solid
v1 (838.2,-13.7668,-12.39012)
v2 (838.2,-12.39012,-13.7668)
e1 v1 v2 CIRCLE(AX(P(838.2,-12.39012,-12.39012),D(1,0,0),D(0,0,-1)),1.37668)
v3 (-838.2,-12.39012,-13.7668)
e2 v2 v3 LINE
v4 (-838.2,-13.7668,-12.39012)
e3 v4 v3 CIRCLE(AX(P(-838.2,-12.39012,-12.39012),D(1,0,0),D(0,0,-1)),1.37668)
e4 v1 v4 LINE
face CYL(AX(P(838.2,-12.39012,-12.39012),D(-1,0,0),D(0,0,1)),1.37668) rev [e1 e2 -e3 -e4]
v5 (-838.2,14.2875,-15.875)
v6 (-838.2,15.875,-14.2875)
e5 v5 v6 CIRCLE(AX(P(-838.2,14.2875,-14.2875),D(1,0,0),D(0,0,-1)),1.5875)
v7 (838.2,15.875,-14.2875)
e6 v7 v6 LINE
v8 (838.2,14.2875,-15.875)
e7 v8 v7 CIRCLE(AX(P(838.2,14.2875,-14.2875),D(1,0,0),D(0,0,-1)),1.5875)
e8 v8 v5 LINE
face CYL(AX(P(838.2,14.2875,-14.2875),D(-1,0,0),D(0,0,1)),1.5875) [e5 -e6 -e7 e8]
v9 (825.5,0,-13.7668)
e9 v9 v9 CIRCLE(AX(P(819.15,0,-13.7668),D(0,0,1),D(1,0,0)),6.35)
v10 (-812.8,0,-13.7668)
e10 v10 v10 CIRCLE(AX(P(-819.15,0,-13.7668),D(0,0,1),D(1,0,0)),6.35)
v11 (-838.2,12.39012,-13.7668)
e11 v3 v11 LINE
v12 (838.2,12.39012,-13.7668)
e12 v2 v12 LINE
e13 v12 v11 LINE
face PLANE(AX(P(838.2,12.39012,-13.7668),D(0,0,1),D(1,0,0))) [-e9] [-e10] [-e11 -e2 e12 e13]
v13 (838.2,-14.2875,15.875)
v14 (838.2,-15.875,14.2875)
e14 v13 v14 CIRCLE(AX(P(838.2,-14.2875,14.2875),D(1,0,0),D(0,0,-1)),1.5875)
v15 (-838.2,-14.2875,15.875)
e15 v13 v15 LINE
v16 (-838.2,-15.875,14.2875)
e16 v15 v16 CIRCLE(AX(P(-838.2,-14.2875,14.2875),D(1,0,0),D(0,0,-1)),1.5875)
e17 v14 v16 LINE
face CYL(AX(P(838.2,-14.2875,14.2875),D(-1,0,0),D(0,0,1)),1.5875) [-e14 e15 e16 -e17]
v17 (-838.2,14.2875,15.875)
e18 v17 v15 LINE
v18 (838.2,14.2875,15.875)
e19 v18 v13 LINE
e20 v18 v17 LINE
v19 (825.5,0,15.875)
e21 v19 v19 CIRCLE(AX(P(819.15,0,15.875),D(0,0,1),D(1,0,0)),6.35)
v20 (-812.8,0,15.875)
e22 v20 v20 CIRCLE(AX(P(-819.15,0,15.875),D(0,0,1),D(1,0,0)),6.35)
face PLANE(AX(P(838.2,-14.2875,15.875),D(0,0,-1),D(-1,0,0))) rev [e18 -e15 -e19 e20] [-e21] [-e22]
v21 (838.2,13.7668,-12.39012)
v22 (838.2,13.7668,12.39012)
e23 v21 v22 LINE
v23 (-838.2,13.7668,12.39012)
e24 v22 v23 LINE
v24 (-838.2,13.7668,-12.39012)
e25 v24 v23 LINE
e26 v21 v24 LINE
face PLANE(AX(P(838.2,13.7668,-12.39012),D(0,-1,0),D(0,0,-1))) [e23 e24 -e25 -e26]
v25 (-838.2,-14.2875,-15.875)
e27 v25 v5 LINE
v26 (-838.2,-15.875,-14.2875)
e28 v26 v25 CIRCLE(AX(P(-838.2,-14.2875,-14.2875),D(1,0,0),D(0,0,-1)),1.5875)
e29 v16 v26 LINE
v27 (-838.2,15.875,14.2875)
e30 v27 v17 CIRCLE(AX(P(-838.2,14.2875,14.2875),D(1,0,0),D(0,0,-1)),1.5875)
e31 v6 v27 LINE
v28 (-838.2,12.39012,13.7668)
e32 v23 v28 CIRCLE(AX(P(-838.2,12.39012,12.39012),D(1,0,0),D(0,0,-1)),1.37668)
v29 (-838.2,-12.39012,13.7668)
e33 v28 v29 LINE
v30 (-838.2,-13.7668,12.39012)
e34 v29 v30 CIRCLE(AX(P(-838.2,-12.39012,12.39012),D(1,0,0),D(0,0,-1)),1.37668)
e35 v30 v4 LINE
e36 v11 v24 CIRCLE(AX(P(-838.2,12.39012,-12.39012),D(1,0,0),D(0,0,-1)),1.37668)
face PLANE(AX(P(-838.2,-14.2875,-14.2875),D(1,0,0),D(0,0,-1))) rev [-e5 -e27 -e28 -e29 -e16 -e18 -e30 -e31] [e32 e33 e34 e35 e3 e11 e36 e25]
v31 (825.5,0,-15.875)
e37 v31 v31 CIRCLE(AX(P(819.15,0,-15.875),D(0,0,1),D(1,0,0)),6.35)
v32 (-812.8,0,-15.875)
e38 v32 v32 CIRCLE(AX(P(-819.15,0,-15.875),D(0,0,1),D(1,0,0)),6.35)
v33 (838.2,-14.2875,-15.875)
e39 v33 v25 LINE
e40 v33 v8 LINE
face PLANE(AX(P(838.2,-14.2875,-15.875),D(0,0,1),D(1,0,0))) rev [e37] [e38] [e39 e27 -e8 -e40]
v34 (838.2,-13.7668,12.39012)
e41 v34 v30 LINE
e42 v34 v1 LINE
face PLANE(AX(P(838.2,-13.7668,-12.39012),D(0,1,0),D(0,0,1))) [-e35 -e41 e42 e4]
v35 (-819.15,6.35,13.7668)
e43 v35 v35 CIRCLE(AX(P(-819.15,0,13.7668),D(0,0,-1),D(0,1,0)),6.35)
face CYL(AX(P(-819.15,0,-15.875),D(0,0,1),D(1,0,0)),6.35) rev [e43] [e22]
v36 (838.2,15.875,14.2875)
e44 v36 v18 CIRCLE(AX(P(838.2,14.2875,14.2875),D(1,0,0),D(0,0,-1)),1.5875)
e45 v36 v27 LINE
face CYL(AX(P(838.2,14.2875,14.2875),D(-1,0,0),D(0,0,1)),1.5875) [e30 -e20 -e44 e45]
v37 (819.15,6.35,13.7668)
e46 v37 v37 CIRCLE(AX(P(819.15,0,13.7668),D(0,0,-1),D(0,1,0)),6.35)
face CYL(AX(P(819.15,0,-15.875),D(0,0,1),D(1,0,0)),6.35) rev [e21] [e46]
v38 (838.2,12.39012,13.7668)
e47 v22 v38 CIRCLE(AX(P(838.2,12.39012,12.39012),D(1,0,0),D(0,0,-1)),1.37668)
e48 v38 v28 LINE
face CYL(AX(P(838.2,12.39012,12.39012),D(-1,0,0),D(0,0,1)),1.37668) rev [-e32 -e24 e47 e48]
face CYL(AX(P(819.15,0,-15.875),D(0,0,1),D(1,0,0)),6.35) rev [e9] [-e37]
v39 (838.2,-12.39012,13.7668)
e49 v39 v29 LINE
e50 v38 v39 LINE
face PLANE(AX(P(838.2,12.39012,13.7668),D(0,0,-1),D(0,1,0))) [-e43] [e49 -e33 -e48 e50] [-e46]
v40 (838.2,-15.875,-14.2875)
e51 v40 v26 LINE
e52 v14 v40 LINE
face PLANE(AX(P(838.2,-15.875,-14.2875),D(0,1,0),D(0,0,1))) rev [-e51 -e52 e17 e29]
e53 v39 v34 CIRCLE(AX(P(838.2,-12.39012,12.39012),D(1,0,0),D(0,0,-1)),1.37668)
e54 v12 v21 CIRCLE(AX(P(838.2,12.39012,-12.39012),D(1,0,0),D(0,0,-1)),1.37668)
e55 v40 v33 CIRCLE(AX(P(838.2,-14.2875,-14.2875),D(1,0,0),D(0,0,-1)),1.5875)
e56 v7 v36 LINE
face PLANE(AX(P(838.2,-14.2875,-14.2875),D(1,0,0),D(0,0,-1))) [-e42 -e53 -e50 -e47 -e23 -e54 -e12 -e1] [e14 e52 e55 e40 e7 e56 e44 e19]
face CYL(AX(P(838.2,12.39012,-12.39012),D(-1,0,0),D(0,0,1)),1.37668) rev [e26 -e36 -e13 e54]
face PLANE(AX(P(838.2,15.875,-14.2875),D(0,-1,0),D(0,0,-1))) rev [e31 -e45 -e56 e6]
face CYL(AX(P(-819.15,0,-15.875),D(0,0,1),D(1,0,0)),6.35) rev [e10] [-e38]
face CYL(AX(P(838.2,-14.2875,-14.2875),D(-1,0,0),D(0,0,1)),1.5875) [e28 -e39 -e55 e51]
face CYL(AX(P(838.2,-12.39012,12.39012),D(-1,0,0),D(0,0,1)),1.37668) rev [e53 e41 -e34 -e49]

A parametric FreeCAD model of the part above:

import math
import FreeCAD as App
import Part
import Sketcher

V = App.Vector
Q = App.Units.Quantity

doc = App.newDocument("Part")
body = doc.addObject("PartDesign::Body", "Body")

# Sketch on YZ plane
sketch1 = body.newObject("Sketcher::SketchObject", "Sketch")
sketch1.AttachmentSupport = (doc.getObject("YZ_Plane"), [""])
sketch1.MapMode = "FlatFace"
sketch1.addGeometry(Part.LineSegment(V(-14.2875, -15.875, 0), V(14.2875, -15.875, 0)), False)
sketch1.addGeometry(Part.ArcOfCircle(Part.Circle(V(14.2875, -14.2875, 0), V(0, 0, 1), 1.5875), math.radians(-90), math.radians(0)), False)
sketch1.addGeometry(Part.LineSegment(V(15.875, -14.2875, 0), V(15.875, 14.2875, 0)), False)
sketch1.addGeometry(Part.ArcOfCircle(Part.Circle(V(14.2875, 14.2875, 0), V(0, 0, 1), 1.5875), math.radians(0), math.radians(90)), False)
sketch1.addGeometry(Part.LineSegment(V(14.2875, 15.875, 0), V(-14.2875, 15.875, 0)), False)
sketch1.addGeometry(Part.ArcOfCircle(Part.Circle(V(-14.2875, 14.2875, 0), V(0, 0, 1), 1.5875), math.radians(90), math.radians(180)), False)
sketch1.addGeometry(Part.LineSegment(V(-15.875, 14.2875, 0), V(-15.875, -14.2875, 0)), False)
sketch1.addGeometry(Part.ArcOfCircle(Part.Circle(V(-14.2875, -14.2875, 0), V(0, 0, 1), 1.5875), math.radians(180), math.radians(270)), False)
sketch1.addGeometry(Part.ArcOfCircle(Part.Circle(V(12.39012, -12.39012, 0), V(0, 0, 1), 1.37668), math.radians(-90), math.radians(0)), False)
sketch1.addGeometry(Part.LineSegment(V(12.39012, -13.7668, 0), V(-12.39012, -13.7668, 0)), False)
sketch1.addGeometry(Part.ArcOfCircle(Part.Circle(V(-12.39012, -12.39012, 0), V(0, 0, 1), 1.37668), math.radians(180), math.radians(270)), False)
sketch1.addGeometry(Part.LineSegment(V(-13.7668, -12.39012, 0), V(-13.7668, 12.39012, 0)), False)
sketch1.addGeometry(Part.ArcOfCircle(Part.Circle(V(-12.39012, 12.39012, 0), V(0, 0, 1), 1.37668), math.radians(90), math.radians(180)), False)
sketch1.addGeometry(Part.LineSegment(V(-12.39012, 13.7668, 0), V(12.39012, 13.7668, 0)), False)
sketch1.addGeometry(Part.ArcOfCircle(Part.Circle(V(12.39012, 12.39012, 0), V(0, 0, 1), 1.37668), math.radians(0), math.radians(90)), False)
sketch1.addGeometry(Part.LineSegment(V(13.7668, 12.39012, 0), V(13.7668, -12.39012, 0)), False)
sketch1.addConstraint(Sketcher.Constraint("Tangent", 0, 2, 1, 1))
sketch1.addConstraint(Sketcher.Constraint("Tangent", 1, 2, 2, 1))
sketch1.addConstraint(Sketcher.Constraint("Tangent", 2, 2, 3, 1))
sketch1.addConstraint(Sketcher.Constraint("Tangent", 3, 2, 4, 1))
sketch1.addConstraint(Sketcher.Constraint("Tangent", 4, 2, 5, 1))
sketch1.addConstraint(Sketcher.Constraint("Tangent", 5, 2, 6, 1))
sketch1.addConstraint(Sketcher.Constraint("Tangent", 6, 2, 7, 1))
sketch1.addConstraint(Sketcher.Constraint("Tangent", 7, 2, 0, 1))
sketch1.addConstraint(Sketcher.Constraint("Tangent", 8, 1, 9, 1))
sketch1.addConstraint(Sketcher.Constraint("Tangent", 9, 2, 10, 2))
sketch1.addConstraint(Sketcher.Constraint("Tangent", 10, 1, 11, 1))
sketch1.addConstraint(Sketcher.Constraint("Tangent", 11, 2, 12, 2))
sketch1.addConstraint(Sketcher.Constraint("Tangent", 12, 1, 13, 1))
sketch1.addConstraint(Sketcher.Constraint("Tangent", 13, 2, 14, 2))
sketch1.addConstraint(Sketcher.Constraint("Tangent", 14, 1, 15, 1))
sketch1.addConstraint(Sketcher.Constraint("Tangent", 15, 2, 8, 2))
sketch1.addConstraint(Sketcher.Constraint("Horizontal", 0))
sketch1.addConstraint(Sketcher.Constraint("Vertical", 2))
sketch1.addConstraint(Sketcher.Constraint("Horizontal", 4))
sketch1.addConstraint(Sketcher.Constraint("Vertical", 6))
sketch1.addConstraint(Sketcher.Constraint("Horizontal", 9))
sketch1.addConstraint(Sketcher.Constraint("Vertical", 11))
sketch1.addConstraint(Sketcher.Constraint("Horizontal", 13))
sketch1.addConstraint(Sketcher.Constraint("Vertical", 15))
sketch1.addConstraint(Sketcher.Constraint("Equal", 1, 3))
sketch1.addConstraint(Sketcher.Constraint("Equal", 3, 5))
sketch1.addConstraint(Sketcher.Constraint("Equal", 5, 7))
sketch1.addConstraint(Sketcher.Constraint("Equal", 8, 10))
sketch1.addConstraint(Sketcher.Constraint("Equal", 10, 12))
sketch1.addConstraint(Sketcher.Constraint("Equal", 12, 14))
sketch1.addConstraint(Sketcher.Constraint("Symmetric", 1, 3, 5, 3, -1, 1))
sketch1.addConstraint(Sketcher.Constraint("Symmetric", 8, 3, 12, 3, -1, 1))
sketch1.addConstraint(Sketcher.Constraint("Equal", 4, 2))
sketch1.addConstraint(Sketcher.Constraint("Equal", 13, 11))
sketch1.addConstraint(Sketcher.Constraint("Radius", 1, Q("0.0625 in")))
sketch1.addConstraint(Sketcher.Constraint("Radius", 8, Q("0.0542 in")))
sketch1.addConstraint(Sketcher.Constraint("DistanceX", 0, 1, 0, 2, Q("1.125 in")))
sketch1.addConstraint(Sketcher.Constraint("DistanceX", 9, 2, 9, 1, Q("0.9756 in")))
pad1 = body.newObject("PartDesign::Pad", "Pad")
pad1.Profile = sketch1
pad1.Type = "TwoLengths"
pad1.Length = Q("33 in")
pad1.Length2 = Q("33 in")

# Sketch on XY plane
sketch2 = body.newObject("Sketcher::SketchObject", "Sketch001")
sketch2.AttachmentSupport = (doc.getObject("XY_Plane"), [""])
sketch2.MapMode = "FlatFace"
sketch2.AttachmentOffset = App.Placement(V(0, 0, 0.625 * 25.4), App.Rotation())
sketch2.addGeometry(Part.Circle(V(819.15, 0, 0), V(0, 0, 1), 6.35), False)
sketch2.addGeometry(Part.Circle(V(-819.15, 0, 0), V(0, 0, 1), 6.35), False)
sketch2.addConstraint(Sketcher.Constraint("Equal", 0, 1))
sketch2.addConstraint(Sketcher.Constraint("Symmetric", 0, 3, 1, 3, -1, 1))
sketch2.addConstraint(Sketcher.Constraint("PointOnObject", 0, 3, -1))
sketch2.addConstraint(Sketcher.Constraint("Diameter", 0, Q("0.5 in")))
sketch2.addConstraint(Sketcher.Constraint("DistanceX", 1, 3, 0, 3, Q("64.5 in")))
pocket1 = body.newObject("PartDesign::Pocket", "Pocket")
pocket1.Profile = sketch2
pocket1.Type = "ThroughAll"

doc.recompute()
